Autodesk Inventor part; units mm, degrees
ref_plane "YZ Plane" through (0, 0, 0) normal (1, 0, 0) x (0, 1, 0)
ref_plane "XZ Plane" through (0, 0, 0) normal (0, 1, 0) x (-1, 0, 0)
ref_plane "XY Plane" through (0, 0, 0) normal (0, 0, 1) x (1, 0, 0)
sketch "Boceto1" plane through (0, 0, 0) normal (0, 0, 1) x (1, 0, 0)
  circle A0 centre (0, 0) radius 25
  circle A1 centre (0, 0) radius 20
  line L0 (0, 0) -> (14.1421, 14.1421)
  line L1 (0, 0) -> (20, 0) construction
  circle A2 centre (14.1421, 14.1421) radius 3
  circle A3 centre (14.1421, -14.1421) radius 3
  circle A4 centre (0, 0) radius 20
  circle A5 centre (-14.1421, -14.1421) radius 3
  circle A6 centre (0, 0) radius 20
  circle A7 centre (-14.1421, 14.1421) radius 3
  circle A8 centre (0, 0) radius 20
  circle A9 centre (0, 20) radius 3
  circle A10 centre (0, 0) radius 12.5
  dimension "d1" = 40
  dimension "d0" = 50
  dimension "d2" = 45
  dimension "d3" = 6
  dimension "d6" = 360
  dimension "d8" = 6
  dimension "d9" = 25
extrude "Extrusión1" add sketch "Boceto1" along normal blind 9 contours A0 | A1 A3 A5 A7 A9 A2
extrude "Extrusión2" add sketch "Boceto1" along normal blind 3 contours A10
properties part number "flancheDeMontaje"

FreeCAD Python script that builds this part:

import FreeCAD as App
import Part
import Sketcher

V = App.Vector

doc = App.newDocument("Part")
body = doc.addObject("PartDesign::Body", "Body")

sketch1 = body.newObject("Sketcher::SketchObject", "Sketch")
sketch1.AttachmentSupport = (doc.getObject("XY_Plane"), [""])
sketch1.MapMode = "FlatFace"
sketch1.addGeometry(Part.Circle(V(0, 0, 0), V(0, 0, 1), 25), False)
sketch1.addGeometry(Part.Circle(V(14.1421, 14.1421, 0), V(0, 0, 1), 3), False)
sketch1.addGeometry(Part.Circle(V(0, 20, 0), V(0, 0, 1), 3), False)
sketch1.addGeometry(Part.Circle(V(-14.1421, 14.1421, 0), V(0, 0, 1), 3), False)
sketch1.addGeometry(Part.Circle(V(-14.1421, -14.1421, 0), V(0, 0, 1), 3), False)
sketch1.addGeometry(Part.Circle(V(14.1421, -14.1421, 0), V(0, 0, 1), 3), False)
sketch1.addGeometry(Part.Circle(V(0, 0, 0), V(0, 0, 1), 12.5), False)
sketch1.addConstraint(Sketcher.Constraint("Coincident", 0, 3, -1, 1))
sketch1.addConstraint(Sketcher.Constraint("Coincident", 6, 3, -1, 1))
sketch1.addConstraint(Sketcher.Constraint("Equal", 1, 2))
sketch1.addConstraint(Sketcher.Constraint("Equal", 2, 3))
sketch1.addConstraint(Sketcher.Constraint("Equal", 3, 4))
sketch1.addConstraint(Sketcher.Constraint("Equal", 4, 5))
sketch1.addConstraint(Sketcher.Constraint("Symmetric", 1, 3, 4, 3, -1, 1))
sketch1.addConstraint(Sketcher.Constraint("Symmetric", 3, 3, 5, 3, -1, 1))
sketch1.addConstraint(Sketcher.Constraint("Symmetric", 1, 3, 3, 3, -2))
sketch1.addConstraint(Sketcher.Constraint("PointOnObject", 2, 3, -2))
sketch1.addConstraint(Sketcher.Constraint("Diameter", 0, 50.0))
sketch1.addConstraint(Sketcher.Constraint("Diameter", 1, 6.0))
sketch1.addConstraint(Sketcher.Constraint("Diameter", 6, 25.0))
sketch1.addConstraint(Sketcher.Constraint("DistanceY", -1, 1, 2, 3, 20.0))
sketch1.addConstraint(Sketcher.Constraint("DistanceX", -1, 1, 1, 3, 14.142))
sketch1.addConstraint(Sketcher.Constraint("DistanceY", -1, 1, 1, 3, 14.142))
pad1 = body.newObject("PartDesign::Pad", "Pad")
pad1.Profile = sketch1
pad1.Length = 9

sketch2 = body.newObject("Sketcher::SketchObject", "Sketch001")
sketch2.AttachmentSupport = (doc.getObject("XY_Plane"), [""])
sketch2.MapMode = "FlatFace"
sketch2.addGeometry(Part.Circle(V(0, 0, 0), V(0, 0, 1), 12.5), False)
sketch2.addConstraint(Sketcher.Constraint("Coincident", 0, 3, -1, 1))
sketch2.addConstraint(Sketcher.Constraint("Diameter", 0, 25.0))
pad2 = body.newObject("PartDesign::Pad", "Pad001")
pad2.Profile = sketch2
pad2.Length = 3

doc.recompute()
